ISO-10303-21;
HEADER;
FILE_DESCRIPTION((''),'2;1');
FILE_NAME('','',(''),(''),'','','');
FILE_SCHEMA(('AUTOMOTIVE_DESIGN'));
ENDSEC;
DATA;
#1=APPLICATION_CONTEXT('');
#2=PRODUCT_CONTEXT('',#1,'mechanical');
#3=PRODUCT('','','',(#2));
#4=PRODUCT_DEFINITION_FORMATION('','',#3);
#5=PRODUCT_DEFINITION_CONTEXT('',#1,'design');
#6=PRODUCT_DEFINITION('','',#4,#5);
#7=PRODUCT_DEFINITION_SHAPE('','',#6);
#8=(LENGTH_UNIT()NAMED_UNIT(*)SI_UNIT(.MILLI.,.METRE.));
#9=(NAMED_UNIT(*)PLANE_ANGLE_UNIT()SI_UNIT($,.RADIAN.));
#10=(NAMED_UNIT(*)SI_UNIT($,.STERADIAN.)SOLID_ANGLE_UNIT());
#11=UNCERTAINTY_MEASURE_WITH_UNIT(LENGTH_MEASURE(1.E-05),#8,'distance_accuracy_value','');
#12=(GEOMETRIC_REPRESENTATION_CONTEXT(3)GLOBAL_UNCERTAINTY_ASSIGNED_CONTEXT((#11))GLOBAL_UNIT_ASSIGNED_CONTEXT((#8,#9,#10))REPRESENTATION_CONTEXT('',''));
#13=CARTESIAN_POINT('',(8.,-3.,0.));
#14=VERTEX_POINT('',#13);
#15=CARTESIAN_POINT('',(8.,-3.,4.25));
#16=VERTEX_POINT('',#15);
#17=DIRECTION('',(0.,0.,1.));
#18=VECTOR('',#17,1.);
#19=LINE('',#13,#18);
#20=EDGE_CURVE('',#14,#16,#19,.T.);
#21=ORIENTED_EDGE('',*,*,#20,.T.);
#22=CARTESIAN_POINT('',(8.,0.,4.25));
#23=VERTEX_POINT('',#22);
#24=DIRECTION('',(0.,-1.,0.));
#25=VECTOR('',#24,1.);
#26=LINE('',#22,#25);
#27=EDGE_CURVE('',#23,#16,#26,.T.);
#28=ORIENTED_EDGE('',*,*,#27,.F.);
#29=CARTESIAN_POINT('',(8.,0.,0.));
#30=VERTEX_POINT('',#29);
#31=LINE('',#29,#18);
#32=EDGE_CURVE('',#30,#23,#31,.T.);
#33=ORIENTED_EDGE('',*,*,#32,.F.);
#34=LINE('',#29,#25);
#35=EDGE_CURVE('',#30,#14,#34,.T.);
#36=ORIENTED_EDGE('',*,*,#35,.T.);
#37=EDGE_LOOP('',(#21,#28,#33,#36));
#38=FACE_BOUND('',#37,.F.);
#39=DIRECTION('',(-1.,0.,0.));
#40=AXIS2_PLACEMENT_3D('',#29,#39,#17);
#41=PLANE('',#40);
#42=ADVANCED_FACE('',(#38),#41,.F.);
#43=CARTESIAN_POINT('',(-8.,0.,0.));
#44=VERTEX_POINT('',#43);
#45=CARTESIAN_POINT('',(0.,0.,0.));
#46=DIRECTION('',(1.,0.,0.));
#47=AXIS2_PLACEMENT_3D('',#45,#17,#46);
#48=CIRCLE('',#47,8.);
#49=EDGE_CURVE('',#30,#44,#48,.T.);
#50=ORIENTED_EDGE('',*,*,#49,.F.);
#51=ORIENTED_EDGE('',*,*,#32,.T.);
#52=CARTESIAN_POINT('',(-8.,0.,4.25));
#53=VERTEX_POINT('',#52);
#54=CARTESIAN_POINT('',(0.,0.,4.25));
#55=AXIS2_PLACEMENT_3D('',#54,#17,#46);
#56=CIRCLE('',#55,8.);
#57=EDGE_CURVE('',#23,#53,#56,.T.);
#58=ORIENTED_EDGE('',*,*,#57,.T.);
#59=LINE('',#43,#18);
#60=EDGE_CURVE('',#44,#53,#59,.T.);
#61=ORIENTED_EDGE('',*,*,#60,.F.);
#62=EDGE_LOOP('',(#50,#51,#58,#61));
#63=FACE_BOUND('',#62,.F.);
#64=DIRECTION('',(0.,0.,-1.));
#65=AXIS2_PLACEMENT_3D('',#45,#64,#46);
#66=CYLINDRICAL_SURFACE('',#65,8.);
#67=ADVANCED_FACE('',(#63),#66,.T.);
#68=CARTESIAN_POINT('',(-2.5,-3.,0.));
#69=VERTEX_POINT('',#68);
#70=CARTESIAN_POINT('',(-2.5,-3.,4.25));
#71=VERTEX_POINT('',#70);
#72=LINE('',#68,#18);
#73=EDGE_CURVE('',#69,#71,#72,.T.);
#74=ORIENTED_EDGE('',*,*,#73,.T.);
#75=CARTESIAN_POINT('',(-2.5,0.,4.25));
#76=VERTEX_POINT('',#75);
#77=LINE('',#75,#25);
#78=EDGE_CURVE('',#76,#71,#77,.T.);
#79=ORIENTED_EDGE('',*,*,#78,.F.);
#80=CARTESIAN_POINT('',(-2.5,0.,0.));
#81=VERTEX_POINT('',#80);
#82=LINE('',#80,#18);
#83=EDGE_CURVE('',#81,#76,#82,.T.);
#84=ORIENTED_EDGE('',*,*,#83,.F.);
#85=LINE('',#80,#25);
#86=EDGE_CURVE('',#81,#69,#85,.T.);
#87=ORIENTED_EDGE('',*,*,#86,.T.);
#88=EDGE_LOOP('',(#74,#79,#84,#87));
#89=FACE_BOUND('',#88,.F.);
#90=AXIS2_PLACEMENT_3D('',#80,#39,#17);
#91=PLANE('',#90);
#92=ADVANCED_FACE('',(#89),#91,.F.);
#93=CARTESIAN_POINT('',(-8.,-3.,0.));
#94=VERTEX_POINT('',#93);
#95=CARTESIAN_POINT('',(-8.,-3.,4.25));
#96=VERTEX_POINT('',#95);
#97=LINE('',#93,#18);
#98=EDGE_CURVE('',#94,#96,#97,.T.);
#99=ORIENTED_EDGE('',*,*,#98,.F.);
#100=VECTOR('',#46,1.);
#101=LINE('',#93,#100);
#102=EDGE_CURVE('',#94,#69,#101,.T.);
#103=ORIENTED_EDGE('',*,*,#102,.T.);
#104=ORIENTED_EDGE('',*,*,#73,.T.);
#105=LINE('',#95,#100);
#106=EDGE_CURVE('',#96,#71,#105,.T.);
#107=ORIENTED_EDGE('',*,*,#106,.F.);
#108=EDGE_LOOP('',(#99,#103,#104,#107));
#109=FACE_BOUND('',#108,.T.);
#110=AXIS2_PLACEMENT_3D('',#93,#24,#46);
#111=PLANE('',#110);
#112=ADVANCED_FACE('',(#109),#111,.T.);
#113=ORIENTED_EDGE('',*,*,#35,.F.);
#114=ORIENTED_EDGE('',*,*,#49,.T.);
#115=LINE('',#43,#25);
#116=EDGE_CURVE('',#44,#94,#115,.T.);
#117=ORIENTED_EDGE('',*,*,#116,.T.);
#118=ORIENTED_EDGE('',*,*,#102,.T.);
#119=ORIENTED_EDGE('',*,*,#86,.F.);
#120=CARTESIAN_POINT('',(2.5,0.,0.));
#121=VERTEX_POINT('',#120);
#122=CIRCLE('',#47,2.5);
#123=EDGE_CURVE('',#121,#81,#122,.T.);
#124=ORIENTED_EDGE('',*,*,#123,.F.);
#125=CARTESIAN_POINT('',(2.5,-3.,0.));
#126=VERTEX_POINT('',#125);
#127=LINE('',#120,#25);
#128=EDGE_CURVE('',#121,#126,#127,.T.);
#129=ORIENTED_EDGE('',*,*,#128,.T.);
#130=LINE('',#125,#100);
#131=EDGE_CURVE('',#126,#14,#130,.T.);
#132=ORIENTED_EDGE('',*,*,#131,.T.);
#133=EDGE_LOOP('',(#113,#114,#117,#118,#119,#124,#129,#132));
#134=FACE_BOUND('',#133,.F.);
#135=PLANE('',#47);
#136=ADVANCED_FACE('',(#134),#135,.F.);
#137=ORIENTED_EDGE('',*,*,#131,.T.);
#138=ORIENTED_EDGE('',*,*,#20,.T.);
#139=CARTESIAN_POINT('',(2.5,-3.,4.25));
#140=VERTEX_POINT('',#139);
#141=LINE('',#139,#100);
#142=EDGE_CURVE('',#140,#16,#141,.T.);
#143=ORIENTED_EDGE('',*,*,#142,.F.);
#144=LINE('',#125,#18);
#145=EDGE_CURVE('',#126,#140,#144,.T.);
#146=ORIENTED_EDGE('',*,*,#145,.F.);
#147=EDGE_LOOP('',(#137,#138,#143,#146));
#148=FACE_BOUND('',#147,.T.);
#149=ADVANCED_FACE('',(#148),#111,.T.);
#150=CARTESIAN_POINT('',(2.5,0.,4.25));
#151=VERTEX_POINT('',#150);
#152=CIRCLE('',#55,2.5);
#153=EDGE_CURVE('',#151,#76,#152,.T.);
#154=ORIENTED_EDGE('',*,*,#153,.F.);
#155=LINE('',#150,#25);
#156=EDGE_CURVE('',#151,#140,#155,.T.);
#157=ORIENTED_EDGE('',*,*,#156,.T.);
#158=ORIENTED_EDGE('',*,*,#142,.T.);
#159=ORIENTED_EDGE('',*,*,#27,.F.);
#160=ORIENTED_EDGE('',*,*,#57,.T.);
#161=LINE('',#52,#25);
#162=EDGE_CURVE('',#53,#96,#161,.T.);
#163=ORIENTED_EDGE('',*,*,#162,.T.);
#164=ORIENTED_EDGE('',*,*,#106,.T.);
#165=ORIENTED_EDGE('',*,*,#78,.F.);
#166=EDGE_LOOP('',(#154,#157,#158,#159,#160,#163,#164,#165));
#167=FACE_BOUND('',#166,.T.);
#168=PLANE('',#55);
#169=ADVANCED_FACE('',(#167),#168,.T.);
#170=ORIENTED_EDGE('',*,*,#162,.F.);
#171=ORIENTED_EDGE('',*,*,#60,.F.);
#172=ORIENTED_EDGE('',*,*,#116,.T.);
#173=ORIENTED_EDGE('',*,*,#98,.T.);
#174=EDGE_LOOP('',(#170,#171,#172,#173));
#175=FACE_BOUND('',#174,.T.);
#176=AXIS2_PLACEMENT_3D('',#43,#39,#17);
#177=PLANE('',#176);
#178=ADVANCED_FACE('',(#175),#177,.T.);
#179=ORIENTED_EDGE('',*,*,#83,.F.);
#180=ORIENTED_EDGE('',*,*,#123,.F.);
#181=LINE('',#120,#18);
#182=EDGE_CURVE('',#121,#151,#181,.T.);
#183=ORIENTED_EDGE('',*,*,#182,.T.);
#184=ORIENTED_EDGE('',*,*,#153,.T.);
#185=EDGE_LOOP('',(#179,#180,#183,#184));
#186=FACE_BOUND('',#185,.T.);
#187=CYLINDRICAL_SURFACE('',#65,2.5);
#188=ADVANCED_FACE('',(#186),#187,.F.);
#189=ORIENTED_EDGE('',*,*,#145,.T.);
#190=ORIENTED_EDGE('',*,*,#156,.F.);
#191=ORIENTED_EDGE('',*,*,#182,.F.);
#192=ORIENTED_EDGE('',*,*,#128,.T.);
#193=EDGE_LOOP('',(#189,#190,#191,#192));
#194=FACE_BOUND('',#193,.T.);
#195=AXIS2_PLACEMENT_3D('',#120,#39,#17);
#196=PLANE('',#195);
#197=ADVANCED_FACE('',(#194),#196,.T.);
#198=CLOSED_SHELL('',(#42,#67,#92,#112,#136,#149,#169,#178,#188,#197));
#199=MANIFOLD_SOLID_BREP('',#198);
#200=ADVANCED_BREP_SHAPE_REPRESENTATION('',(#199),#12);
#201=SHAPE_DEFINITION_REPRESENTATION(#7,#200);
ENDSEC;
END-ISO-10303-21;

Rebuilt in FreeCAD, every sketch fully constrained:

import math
import FreeCAD as App
import Part
import Sketcher

V = App.Vector
Q = App.Units.Quantity


def add_polygon(sketch, points):
    """Adds a closed chain of lines whose ends are joined by coincident constraints."""
    first, n = sketch.GeometryCount, len(points)
    for a, b in zip(points, points[1:] + points[:1]):
        sketch.addGeometry(Part.LineSegment(App.Vector(*a, 0), App.Vector(*b, 0)), False)
    for i in range(n):
        sketch.addConstraint(Sketcher.Constraint("Coincident", first + i, 2, first + (i + 1) % n, 1))

doc = App.newDocument("Part")
params = doc.addObject("Spreadsheet::Sheet", "Params")
for row, (alias, value) in enumerate([
    ("sketch1_radius", "8 mm"),
    ("sketch1_radius2", "2.5 mm"),
    ("pad1_length", "4.25 mm"),
    ("sketch2_width", "5.5 mm"),
    ("sketch2_height", "4.25 mm"),
    ("pad2_length", "3 mm"),
], start=1):
    params.set(f"A{row}", alias)
    params.set(f"B{row}", "=" + value)
    params.setAlias(f"B{row}", alias)

body = doc.addObject("PartDesign::Body", "Body")

# Sketch on XY plane
sketch1 = body.newObject("Sketcher::SketchObject", "Sketch")
sketch1.AttachmentSupport = (doc.getObject("XY_Plane"), [""])
sketch1.MapMode = "FlatFace"
sketch1.addGeometry([
    Part.ArcOfCircle(Part.Circle(V(0, 0, 0), V(0, 0, 1), 2.5), math.radians(0), math.radians(180)),
    Part.LineSegment(V(2.5, 0, 0), V(8, 0, 0)),
    Part.ArcOfCircle(Part.Circle(V(0, 0, 0), V(0, 0, 1), 8), math.radians(0), math.radians(180)),
    Part.LineSegment(V(-8, 0, 0), V(-2.5, 0, 0)),
], False)
sketch1.addConstraint([
    Sketcher.Constraint("Coincident", 0, 1, 1, 1),
    Sketcher.Constraint("Coincident", 1, 2, 2, 1),
    Sketcher.Constraint("Coincident", 2, 2, 3, 1),
    Sketcher.Constraint("Coincident", 3, 2, 0, 2),
    Sketcher.Constraint("Horizontal", 1),
    Sketcher.Constraint("Horizontal", 3),
    Sketcher.Constraint("Coincident", 0, 3, -1, 1),
    Sketcher.Constraint("Coincident", 2, 3, -1, 1),
    Sketcher.Constraint("PointOnObject", 0, 1, -1),
    Sketcher.Constraint("PointOnObject", 2, 2, -1),
    Sketcher.Constraint("Radius", 2, Q("8 mm")),
    Sketcher.Constraint("Radius", 0, Q("2.5 mm")),
])
sketch1.setExpression("Constraints[10]", "Params.sketch1_radius")
sketch1.setExpression("Constraints[11]", "Params.sketch1_radius2")
pad1 = body.newObject("PartDesign::Pad", "Pad")
pad1.Profile = sketch1
pad1.setExpression("Length", "Params.pad1_length")

# Sketch on XZ plane
sketch2 = body.newObject("Sketcher::SketchObject", "Sketch001")
sketch2.AttachmentSupport = (doc.getObject("XZ_Plane"), [""])
sketch2.MapMode = "FlatFace"
add_polygon(sketch2, [(-8, 4.2), (-8, 0), (-2.5, 0), (-2.5, 4.2)])  # lines 0-3
add_polygon(sketch2, [(2.5, 4.2), (2.5, 0), (8, 0), (8, 4.2)])  # lines 4-7
sketch2.addConstraint([
    Sketcher.Constraint("Vertical", 0),
    Sketcher.Constraint("Horizontal", 1),
    Sketcher.Constraint("Vertical", 2),
    Sketcher.Constraint("Horizontal", 3),
    Sketcher.Constraint("Vertical", 4),
    Sketcher.Constraint("Horizontal", 5),
    Sketcher.Constraint("Vertical", 6),
    Sketcher.Constraint("Horizontal", 7),
    Sketcher.Constraint("Symmetric", 1, 2, 4, 2, -1, 1),
    Sketcher.Constraint("Symmetric", 0, 2, 5, 2, -2),
    Sketcher.Constraint("Horizontal", 3, 2, 6, 2),
    Sketcher.Constraint("DistanceX", 1, 1, 1, 2, Q("5.5 mm")),
    Sketcher.Constraint("DistanceX", 0, 2, -1, 1, Q("8 mm")),
    Sketcher.Constraint("DistanceY", 0, 2, 0, 1, Q("4.25 mm")),
])
sketch2.setExpression("Constraints[19]", "Params.sketch2_width")
sketch2.setExpression("Constraints[21]", "Params.sketch2_height")
pad2 = body.newObject("PartDesign::Pad", "Pad001")
pad2.Profile = sketch2
pad2.setExpression("Length", "Params.pad2_length")

doc.recompute()
